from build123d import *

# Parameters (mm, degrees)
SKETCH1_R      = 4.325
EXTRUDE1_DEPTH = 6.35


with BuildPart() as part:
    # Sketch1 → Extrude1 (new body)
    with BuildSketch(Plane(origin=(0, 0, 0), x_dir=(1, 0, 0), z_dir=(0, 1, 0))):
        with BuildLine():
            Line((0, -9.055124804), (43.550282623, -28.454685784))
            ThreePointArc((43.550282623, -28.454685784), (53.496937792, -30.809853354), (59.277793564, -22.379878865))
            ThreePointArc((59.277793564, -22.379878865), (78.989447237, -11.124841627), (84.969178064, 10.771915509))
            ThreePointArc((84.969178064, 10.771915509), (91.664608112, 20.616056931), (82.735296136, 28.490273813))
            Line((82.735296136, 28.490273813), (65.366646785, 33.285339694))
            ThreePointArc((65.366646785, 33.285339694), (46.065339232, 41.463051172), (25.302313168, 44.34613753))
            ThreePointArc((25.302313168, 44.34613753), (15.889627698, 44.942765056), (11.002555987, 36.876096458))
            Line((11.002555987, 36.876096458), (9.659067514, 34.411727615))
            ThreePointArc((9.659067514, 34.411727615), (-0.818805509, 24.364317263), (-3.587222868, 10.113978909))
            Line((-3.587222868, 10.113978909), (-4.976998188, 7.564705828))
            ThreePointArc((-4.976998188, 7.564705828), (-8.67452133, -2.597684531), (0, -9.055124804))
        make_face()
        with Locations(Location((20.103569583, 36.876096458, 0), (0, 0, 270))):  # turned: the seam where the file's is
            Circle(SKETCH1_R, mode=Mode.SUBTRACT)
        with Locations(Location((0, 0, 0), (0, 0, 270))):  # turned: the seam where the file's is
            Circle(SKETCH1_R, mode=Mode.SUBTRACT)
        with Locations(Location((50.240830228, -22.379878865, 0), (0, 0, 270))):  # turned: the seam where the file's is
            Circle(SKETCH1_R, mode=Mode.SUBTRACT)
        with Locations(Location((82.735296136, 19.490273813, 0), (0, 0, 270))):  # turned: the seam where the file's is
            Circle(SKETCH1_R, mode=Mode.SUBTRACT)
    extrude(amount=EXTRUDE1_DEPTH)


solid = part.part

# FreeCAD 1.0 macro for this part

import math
import FreeCAD as App
import Part
import Sketcher

V = App.Vector
Q = App.Units.Quantity

doc = App.newDocument("Part")
params = doc.addObject("Spreadsheet::Sheet", "Params")
for row, (alias, value) in enumerate([
    ("sketch1_radius", "9 mm"),
    ("sketch1_radius2", "80 mm"),
    ("sketch1_radius3", "24 mm"),
    ("sketch1_diameter", "8.65 mm"),
    ("pad1_length", "6.35 mm"),
], start=1):
    params.set(f"A{row}", alias)
    params.set(f"B{row}", "=" + value)
    params.setAlias(f"B{row}", alias)

body = doc.addObject("PartDesign::Body", "Body")

# Sketch on XZ plane
sketch1 = doc.addObject("Sketcher::SketchObject", "Sketch")
body.addObject(sketch1)
sketch1.AttachmentSupport = (doc.XZ_Plane, [""])
sketch1.MapMode = "FlatFace"
sketch1.addGeometry(Part.LineSegment(V(0, 9.1, 0), V(43.6, 28.5, 0)), False)
sketch1.addGeometry(Part.ArcOfCircle(Part.Circle(V(50.2, 22.4, 0), V(0, 0, 1), 9), math.radians(0), math.radians(138)), False)
sketch1.addGeometry(Part.ArcOfCircle(Part.Circle(V(55.5, -7, 0), V(0, 0, 1), 29.7), math.radians(-7), math.radians(83)), False)
sketch1.addGeometry(Part.ArcOfCircle(Part.Circle(V(82.7, -19.5, 0), V(0, 0, 1), 9), math.radians(-90), math.radians(76)), False)
sketch1.addGeometry(Part.LineSegment(V(82.7, -28.5, 0), V(65.4, -33.3, 0)), False)
sketch1.addGeometry(Part.ArcOfCircle(Part.Circle(V(24.8, 35.7, 0), V(0, 0, 1), 80), math.radians(-90), math.radians(-60)), False)
sketch1.addGeometry(Part.ArcOfCircle(Part.Circle(V(20.1, -36.9, 0), V(0, 0, 1), 9.1), math.radians(180), math.radians(305)), False)
sketch1.addGeometry(Part.LineSegment(V(11, -36.9, 0), V(9.7, -34.4, 0)), False)
sketch1.addGeometry(Part.ArcOfCircle(Part.Circle(V(20.3, -12.9, 0), V(0, 0, 1), 24), math.radians(173), math.radians(244)), False)
sketch1.addGeometry(Part.LineSegment(V(-3.6, -10.1, 0), V(-5, -7.6, 0)), False)
sketch1.addGeometry(Part.ArcOfCircle(Part.Circle(V(0, 0, 0), V(0, 0, 1), 9.1), math.radians(90), math.radians(237)), False)
sketch1.addGeometry(Part.Circle(V(0, 0, 0), V(0, 0, 1), 4.3), False)
sketch1.addGeometry(Part.Circle(V(50.2, 22.4, 0), V(0, 0, 1), 4.3), False)
sketch1.addGeometry(Part.Circle(V(20.1, -36.9, 0), V(0, 0, 1), 4.3), False)
sketch1.addGeometry(Part.Circle(V(82.7, -19.5, 0), V(0, 0, 1), 4.3), False)
sketch1.addConstraint(Sketcher.Constraint("Coincident", 0, 2, 1, 2))
sketch1.addConstraint(Sketcher.Constraint("Coincident", 1, 1, 2, 2))
sketch1.addConstraint(Sketcher.Constraint("Coincident", 2, 1, 3, 2))
sketch1.addConstraint(Sketcher.Constraint("Coincident", 3, 1, 4, 1))
sketch1.addConstraint(Sketcher.Constraint("Coincident", 4, 2, 5, 2))
sketch1.addConstraint(Sketcher.Constraint("Coincident", 5, 1, 6, 2))
sketch1.addConstraint(Sketcher.Constraint("Coincident", 6, 1, 7, 1))
sketch1.addConstraint(Sketcher.Constraint("Coincident", 7, 2, 8, 2))
sketch1.addConstraint(Sketcher.Constraint("Coincident", 8, 1, 9, 1))
sketch1.addConstraint(Sketcher.Constraint("Coincident", 9, 2, 10, 2))
sketch1.addConstraint(Sketcher.Constraint("Coincident", 10, 1, 0, 1))
sketch1.addConstraint(Sketcher.Constraint("Coincident", 10, 3, -1, 1))
sketch1.addConstraint(Sketcher.Constraint("Coincident", 11, 3, -1, 1))
sketch1.addConstraint(Sketcher.Constraint("Coincident", 12, 3, 1, 3))
sketch1.addConstraint(Sketcher.Constraint("Coincident", 13, 3, 6, 3))
sketch1.addConstraint(Sketcher.Constraint("Coincident", 14, 3, 3, 3))
sketch1.addConstraint(Sketcher.Constraint("Equal", 11, 12))
sketch1.addConstraint(Sketcher.Constraint("Equal", 12, 13))
sketch1.addConstraint(Sketcher.Constraint("Equal", 13, 14))
sketch1.addConstraint(Sketcher.Constraint("PointOnObject", 10, 1, -2))
sketch1.addConstraint(Sketcher.Constraint("Parallel", 7, 9))
sketch1.addConstraint(Sketcher.Constraint("Horizontal", 12, 3, 1, 1))
sketch1.addConstraint(Sketcher.Constraint("Horizontal", 13, 3, 6, 1))
sketch1.addConstraint(Sketcher.Constraint("Vertical", 14, 3, 3, 1))
sketch1.addConstraint(Sketcher.Constraint("Radius", 3, Q("9 mm")))
sketch1.addConstraint(Sketcher.Constraint("Radius", 5, Q("80 mm")))
sketch1.addConstraint(Sketcher.Constraint("Radius", 8, Q("24 mm")))
sketch1.addConstraint(Sketcher.Constraint("Diameter", 11, Q("8.65 mm")))
sketch1.addConstraint(Sketcher.Constraint("DistanceX", 9, 2, -1, 1, Q("4.976998 mm")))
sketch1.addConstraint(Sketcher.Constraint("Radius", 1, Q("9.036963 mm")))
sketch1.addConstraint(Sketcher.Constraint("Radius", 2, Q("29.657113 mm")))
sketch1.addConstraint(Sketcher.Constraint("Radius", 6, Q("9.101014 mm")))
sketch1.addConstraint(Sketcher.Constraint("Radius", 10, Q("9.055125 mm")))
sketch1.addConstraint(Sketcher.Constraint("DistanceX", 5, 3, 3, 3, Q("57.959601 mm")))
sketch1.addConstraint(Sketcher.Constraint("DistanceX", 5, 3, 1, 1, Q("34.502099 mm")))
sketch1.addConstraint(Sketcher.Constraint("Distance", 7, Q("2.806791 mm")))
sketch1.addConstraint(Sketcher.Constraint("DistanceX", -1, 1, 1, 3, Q("50.24083 mm")))
sketch1.addConstraint(Sketcher.Constraint("DistanceY", -1, 1, 1, 3, Q("22.379879 mm")))
sketch1.addConstraint(Sketcher.Constraint("DistanceX", -1, 1, 2, 3, Q("55.547589 mm")))
sketch1.addConstraint(Sketcher.Constraint("DistanceY", -1, 1, 5, 3, Q("35.652129 mm")))
sketch1.addConstraint(Sketcher.Constraint("DistanceX", -1, 1, 6, 3, Q("20.10357 mm")))
sketch1.addConstraint(Sketcher.Constraint("DistanceX", -1, 1, 8, 3, Q("20.25325 mm")))
sketch1.addConstraint(Sketcher.Constraint("DistanceX", -1, 1, 2, 1, Q("84.969178 mm")))
sketch1.addConstraint(Sketcher.Constraint("DistanceY", 4, 2, -1, 1, Q("33.28534 mm")))
sketch1.addConstraint(Sketcher.Constraint("DistanceY", 8, 1, -1, 1, Q("10.113979 mm")))
sketch1.addConstraint(Sketcher.Constraint("DistanceY", 3, 3, 8, 3, Q("6.613711 mm")))
sketch1.addConstraint(Sketcher.Constraint("DistanceY", 8, 3, 0, 2, Q("41.331249 mm")))
sketch1.setExpression("Constraints[24]", "Params.sketch1_radius")
sketch1.setExpression("Constraints[25]", "Params.sketch1_radius2")
sketch1.setExpression("Constraints[26]", "Params.sketch1_radius3")
sketch1.setExpression("Constraints[27]", "Params.sketch1_diameter")
pad1 = doc.addObject("PartDesign::Pad", "Pad")
body.addObject(pad1)
pad1.Profile = sketch1
pad1.setExpression("Length", "Params.pad1_length")
pad1.Reversed = True

doc.recompute()
